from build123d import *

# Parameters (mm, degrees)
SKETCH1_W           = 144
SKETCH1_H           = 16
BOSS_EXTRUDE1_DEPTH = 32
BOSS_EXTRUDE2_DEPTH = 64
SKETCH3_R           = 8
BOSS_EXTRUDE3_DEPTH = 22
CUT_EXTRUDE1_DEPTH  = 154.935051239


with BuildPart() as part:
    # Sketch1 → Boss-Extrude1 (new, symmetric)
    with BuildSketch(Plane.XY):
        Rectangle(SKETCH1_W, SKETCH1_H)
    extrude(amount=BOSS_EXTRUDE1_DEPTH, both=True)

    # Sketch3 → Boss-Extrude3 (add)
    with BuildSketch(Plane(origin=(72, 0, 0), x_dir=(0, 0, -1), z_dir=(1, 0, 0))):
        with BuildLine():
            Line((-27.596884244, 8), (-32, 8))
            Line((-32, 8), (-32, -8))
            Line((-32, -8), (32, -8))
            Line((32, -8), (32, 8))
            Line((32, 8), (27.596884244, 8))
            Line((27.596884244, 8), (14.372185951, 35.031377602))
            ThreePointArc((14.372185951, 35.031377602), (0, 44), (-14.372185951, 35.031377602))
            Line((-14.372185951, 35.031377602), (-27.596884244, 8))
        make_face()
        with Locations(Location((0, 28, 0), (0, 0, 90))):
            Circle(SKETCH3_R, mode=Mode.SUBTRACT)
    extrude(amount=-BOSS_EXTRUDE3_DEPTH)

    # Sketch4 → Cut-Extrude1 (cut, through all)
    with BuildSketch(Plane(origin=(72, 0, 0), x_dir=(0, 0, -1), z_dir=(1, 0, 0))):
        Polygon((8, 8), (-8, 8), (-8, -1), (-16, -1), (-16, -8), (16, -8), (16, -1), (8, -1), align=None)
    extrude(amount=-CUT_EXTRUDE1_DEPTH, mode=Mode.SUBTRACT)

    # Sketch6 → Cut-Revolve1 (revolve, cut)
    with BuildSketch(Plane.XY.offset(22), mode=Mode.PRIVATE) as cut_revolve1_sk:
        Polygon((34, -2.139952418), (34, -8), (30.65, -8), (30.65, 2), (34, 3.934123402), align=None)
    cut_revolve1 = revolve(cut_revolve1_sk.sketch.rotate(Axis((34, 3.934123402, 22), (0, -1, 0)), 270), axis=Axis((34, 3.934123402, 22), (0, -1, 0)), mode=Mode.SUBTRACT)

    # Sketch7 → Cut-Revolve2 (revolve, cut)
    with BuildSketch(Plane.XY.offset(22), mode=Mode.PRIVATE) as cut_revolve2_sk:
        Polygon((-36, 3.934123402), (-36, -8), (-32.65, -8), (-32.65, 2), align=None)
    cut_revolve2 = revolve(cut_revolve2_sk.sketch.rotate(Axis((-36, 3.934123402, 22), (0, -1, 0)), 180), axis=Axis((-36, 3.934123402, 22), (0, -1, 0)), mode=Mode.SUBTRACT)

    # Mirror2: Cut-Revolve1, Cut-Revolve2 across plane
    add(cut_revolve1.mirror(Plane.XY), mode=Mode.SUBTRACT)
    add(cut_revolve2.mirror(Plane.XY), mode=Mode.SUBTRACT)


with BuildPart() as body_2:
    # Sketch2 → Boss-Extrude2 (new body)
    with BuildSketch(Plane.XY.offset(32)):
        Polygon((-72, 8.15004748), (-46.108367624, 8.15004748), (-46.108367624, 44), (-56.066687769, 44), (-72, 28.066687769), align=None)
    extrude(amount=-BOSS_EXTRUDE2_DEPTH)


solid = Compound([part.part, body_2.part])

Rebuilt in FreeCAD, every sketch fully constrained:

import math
import FreeCAD as App
import Part
import Sketcher
Q = App.Units.Quantity

doc = App.newDocument("Part")
params = doc.addObject("Spreadsheet::Sheet", "Params")
for row, (alias, value) in enumerate([
    ("sketch1_width", "144 mm"),
    ("sketch1_height", "16 mm"),
    ("pad1_length", "64 mm"),
    ("sketch2_diameter", "16 mm"),
    ("sketch2_radius", "16 mm"),
    ("sketch2_width", "16 mm"),
    ("sketch2_height", "64 mm"),
    ("pad2_length", "22 mm"),
    ("sketch3_width", "9 mm"),
    ("sketch3_width2", "7 mm"),
    ("sketch3_height", "16 mm"),
    ("sketch3_height2", "8 mm"),
    ("sketch4_height", "10 mm"),
    ("sketch4_width", "3.35 mm"),
    ("groove_angle", "360 deg"),
    ("sketch5_height", "10 mm"),
    ("sketch5_width", "3.35 mm"),
    ("groove2_angle", "360 deg"),
    ("pad3_length", "64 mm"),
], start=1):
    params.set(f"A{row}", alias)
    params.set(f"B{row}", "=" + value)
    params.setAlias(f"B{row}", alias)

body = doc.addObject("PartDesign::Body", "Body")

# Sketch on XY plane
sketch1 = body.newObject("Sketcher::SketchObject", "Sketch")
sketch1.AttachmentSupport = (doc.getObject("XY_Plane"), [""])
sketch1.MapMode = "FlatFace"
sketch1.addGeometry(Part.LineSegment(App.Vector(-72, 8, 0), App.Vector(-72, -8, 0)), False)
sketch1.addGeometry(Part.LineSegment(App.Vector(-72, -8, 0), App.Vector(72, -8, 0)), False)
sketch1.addGeometry(Part.LineSegment(App.Vector(72, -8, 0), App.Vector(72, 8, 0)), False)
sketch1.addGeometry(Part.LineSegment(App.Vector(72, 8, 0), App.Vector(-72, 8, 0)), False)
sketch1.addConstraint(Sketcher.Constraint("Coincident", 0, 2, 1, 1))
sketch1.addConstraint(Sketcher.Constraint("Coincident", 1, 2, 2, 1))
sketch1.addConstraint(Sketcher.Constraint("Coincident", 2, 2, 3, 1))
sketch1.addConstraint(Sketcher.Constraint("Coincident", 3, 2, 0, 1))
sketch1.addConstraint(Sketcher.Constraint("Vertical", 0))
sketch1.addConstraint(Sketcher.Constraint("Horizontal", 1))
sketch1.addConstraint(Sketcher.Constraint("Vertical", 2))
sketch1.addConstraint(Sketcher.Constraint("Horizontal", 3))
sketch1.addConstraint(Sketcher.Constraint("Symmetric", 0, 2, 2, 2, -1, 1))
sketch1.addConstraint(Sketcher.Constraint("DistanceX", 1, 1, 1, 2, Q("144 mm")))
sketch1.addConstraint(Sketcher.Constraint("DistanceY", 0, 2, 0, 1, Q("16 mm")))
sketch1.setExpression("Constraints[9]", "Params.sketch1_width")
sketch1.setExpression("Constraints[10]", "Params.sketch1_height")
pad1 = body.newObject("PartDesign::Pad", "Pad")
pad1.Profile = sketch1
pad1.setExpression("Length", "Params.pad1_length")
pad1.Midplane = True

# Sketch on YZ plane
sketch2 = body.newObject("Sketcher::SketchObject", "Sketch001")
sketch2.AttachmentSupport = (doc.getObject("YZ_Plane"), [""])
sketch2.MapMode = "FlatFace"
sketch2.AttachmentOffset = App.Placement(App.Vector(0, 0, 72), App.Rotation())
sketch2.addGeometry(Part.LineSegment(App.Vector(8, 27.6, 0), App.Vector(8, 32, 0)), False)
sketch2.addGeometry(Part.LineSegment(App.Vector(8, 32, 0), App.Vector(-8, 32, 0)), False)
sketch2.addGeometry(Part.LineSegment(App.Vector(-8, 32, 0), App.Vector(-8, -32, 0)), False)
sketch2.addGeometry(Part.LineSegment(App.Vector(-8, -32, 0), App.Vector(8, -32, 0)), False)
sketch2.addGeometry(Part.LineSegment(App.Vector(8, -32, 0), App.Vector(8, -27.6, 0)), False)
sketch2.addGeometry(Part.LineSegment(App.Vector(8, -27.6, 0), App.Vector(35, -14.4, 0)), False)
sketch2.addGeometry(Part.ArcOfCircle(Part.Circle(App.Vector(28, 0, 0), App.Vector(0, 0, 1), 16), math.radians(-64), math.radians(64)), False)
sketch2.addGeometry(Part.LineSegment(App.Vector(35, 14.4, 0), App.Vector(8, 27.6, 0)), False)
sketch2.addGeometry(Part.Circle(App.Vector(28, 0, 0), App.Vector(0, 0, 1), 8), False)
sketch2.addConstraint(Sketcher.Constraint("Coincident", 0, 2, 1, 1))
sketch2.addConstraint(Sketcher.Constraint("Coincident", 1, 2, 2, 1))
sketch2.addConstraint(Sketcher.Constraint("Coincident", 2, 2, 3, 1))
sketch2.addConstraint(Sketcher.Constraint("Coincident", 3, 2, 4, 1))
sketch2.addConstraint(Sketcher.Constraint("Coincident", 4, 2, 5, 1))
sketch2.addConstraint(Sketcher.Constraint("Tangent", 5, 2, 6, 1))
sketch2.addConstraint(Sketcher.Constraint("Tangent", 6, 2, 7, 1))
sketch2.addConstraint(Sketcher.Constraint("Coincident", 7, 2, 0, 1))
sketch2.addConstraint(Sketcher.Constraint("Vertical", 0))
sketch2.addConstraint(Sketcher.Constraint("Horizontal", 1))
sketch2.addConstraint(Sketcher.Constraint("Vertical", 2))
sketch2.addConstraint(Sketcher.Constraint("Horizontal", 3))
sketch2.addConstraint(Sketcher.Constraint("Vertical", 4))
sketch2.addConstraint(Sketcher.Constraint("Coincident", 8, 3, 6, 3))
sketch2.addConstraint(Sketcher.Constraint("Symmetric", 0, 2, 2, 2, -1, 1))
sketch2.addConstraint(Sketcher.Constraint("Symmetric", 5, 2, 6, 2, -1))
sketch2.addConstraint(Sketcher.Constraint("Vertical", 0, 2, 3, 2))
sketch2.addConstraint(Sketcher.Constraint("Diameter", 8, Q("16 mm")))
sketch2.addConstraint(Sketcher.Constraint("Radius", 6, Q("16 mm")))
sketch2.addConstraint(Sketcher.Constraint("DistanceX", 1, 2, 1, 1, Q("16 mm")))
sketch2.addConstraint(Sketcher.Constraint("DistanceY", 2, 2, 2, 1, Q("64 mm")))
sketch2.addConstraint(Sketcher.Constraint("DistanceX", -1, 1, 6, 3, Q("28 mm")))
sketch2.addConstraint(Sketcher.Constraint("DistanceY", 4, 2, 5, 2, Q("13.224698 mm")))
sketch2.setExpression("Constraints[17]", "Params.sketch2_diameter")
sketch2.setExpression("Constraints[18]", "Params.sketch2_radius")
sketch2.setExpression("Constraints[19]", "Params.sketch2_width")
sketch2.setExpression("Constraints[20]", "Params.sketch2_height")
pad2 = body.newObject("PartDesign::Pad", "Pad001")
pad2.Profile = sketch2
pad2.setExpression("Length", "Params.pad2_length")
pad2.Reversed = True

# Sketch on YZ plane
sketch3 = body.newObject("Sketcher::SketchObject", "Sketch002")
sketch3.AttachmentSupport = (doc.getObject("YZ_Plane"), [""])
sketch3.MapMode = "FlatFace"
sketch3.AttachmentOffset = App.Placement(App.Vector(0, 0, 72), App.Rotation())
sketch3.addGeometry(Part.LineSegment(App.Vector(8, -8, 0), App.Vector(8, 8, 0)), False)
sketch3.addGeometry(Part.LineSegment(App.Vector(8, 8, 0), App.Vector(-1, 8, 0)), False)
sketch3.addGeometry(Part.LineSegment(App.Vector(-1, 8, 0), App.Vector(-1, 16, 0)), False)
sketch3.addGeometry(Part.LineSegment(App.Vector(-1, 16, 0), App.Vector(-8, 16, 0)), False)
sketch3.addGeometry(Part.LineSegment(App.Vector(-8, 16, 0), App.Vector(-8, -16, 0)), False)
sketch3.addGeometry(Part.LineSegment(App.Vector(-8, -16, 0), App.Vector(-1, -16, 0)), False)
sketch3.addGeometry(Part.LineSegment(App.Vector(-1, -16, 0), App.Vector(-1, -8, 0)), False)
sketch3.addGeometry(Part.LineSegment(App.Vector(-1, -8, 0), App.Vector(8, -8, 0)), False)
sketch3.addConstraint(Sketcher.Constraint("Coincident", 0, 2, 1, 1))
sketch3.addConstraint(Sketcher.Constraint("Coincident", 1, 2, 2, 1))
sketch3.addConstraint(Sketcher.Constraint("Coincident", 2, 2, 3, 1))
sketch3.addConstraint(Sketcher.Constraint("Coincident", 3, 2, 4, 1))
sketch3.addConstraint(Sketcher.Constraint("Coincident", 4, 2, 5, 1))
sketch3.addConstraint(Sketcher.Constraint("Coincident", 5, 2, 6, 1))
sketch3.addConstraint(Sketcher.Constraint("Coincident", 6, 2, 7, 1))
sketch3.addConstraint(Sketcher.Constraint("Coincident", 7, 2, 0, 1))
sketch3.addConstraint(Sketcher.Constraint("Vertical", 0))
sketch3.addConstraint(Sketcher.Constraint("Horizontal", 1))
sketch3.addConstraint(Sketcher.Constraint("Vertical", 2))
sketch3.addConstraint(Sketcher.Constraint("Horizontal", 3))
sketch3.addConstraint(Sketcher.Constraint("Vertical", 4))
sketch3.addConstraint(Sketcher.Constraint("Horizontal", 5))
sketch3.addConstraint(Sketcher.Constraint("Vertical", 6))
sketch3.addConstraint(Sketcher.Constraint("Horizontal", 7))
sketch3.addConstraint(Sketcher.Constraint("Symmetric", 2, 2, 5, 2, -1))
sketch3.addConstraint(Sketcher.Constraint("Equal", 2, 6))
sketch3.addConstraint(Sketcher.Constraint("DistanceX", 1, 2, 1, 1, Q("9 mm")))
sketch3.addConstraint(Sketcher.Constraint("DistanceX", 3, 2, 3, 1, Q("7 mm")))
sketch3.addConstraint(Sketcher.Constraint("DistanceY", 0, 1, 0, 2, Q("16 mm")))
sketch3.addConstraint(Sketcher.Constraint("DistanceY", 2, 1, 2, 2, Q("8 mm")))
sketch3.addConstraint(Sketcher.Constraint("DistanceX", -1, 1, 0, 2, Q("8 mm")))
sketch3.setExpression("Constraints[18]", "Params.sketch3_width")
sketch3.setExpression("Constraints[19]", "Params.sketch3_width2")
sketch3.setExpression("Constraints[20]", "Params.sketch3_height")
sketch3.setExpression("Constraints[21]", "Params.sketch3_height2")
pocket1 = body.newObject("PartDesign::Pocket", "Pocket")
pocket1.Profile = sketch3
pocket1.Type = "ThroughAll"

# Sketch on XY plane
sketch4 = body.newObject("Sketcher::SketchObject", "Sketch003")
sketch4.AttachmentSupport = (doc.getObject("XY_Plane"), [""])
sketch4.MapMode = "FlatFace"
sketch4.AttachmentOffset = App.Placement(App.Vector(0, 0, 22), App.Rotation())
sketch4.addGeometry(Part.LineSegment(App.Vector(34, -8, 0), App.Vector(34, 3.9, 0)), False)
sketch4.addGeometry(Part.LineSegment(App.Vector(34, 3.9, 0), App.Vector(30.6, 2, 0)), False)
sketch4.addGeometry(Part.LineSegment(App.Vector(30.6, 2, 0), App.Vector(30.6, -8, 0)), False)
sketch4.addGeometry(Part.LineSegment(App.Vector(30.6, -8, 0), App.Vector(34, -8, 0)), False)
sketch4.addGeometry(Part.LineSegment(App.Vector(34, 3.9, 0), App.Vector(34, -8, 0)), True)  # axis
sketch4.addConstraint(Sketcher.Constraint("Coincident", 0, 2, 1, 1))
sketch4.addConstraint(Sketcher.Constraint("Coincident", 1, 2, 2, 1))
sketch4.addConstraint(Sketcher.Constraint("Coincident", 2, 2, 3, 1))
sketch4.addConstraint(Sketcher.Constraint("Coincident", 3, 2, 0, 1))
sketch4.addConstraint(Sketcher.Constraint("Vertical", 0))
sketch4.addConstraint(Sketcher.Constraint("Vertical", 2))
sketch4.addConstraint(Sketcher.Constraint("Horizontal", 3))
sketch4.addConstraint(Sketcher.Constraint("Vertical", 4))
sketch4.addConstraint(Sketcher.Constraint("Coincident", 4, 1, 0, 2))
sketch4.addConstraint(Sketcher.Constraint("Horizontal", 2, 2, 4, 2))
sketch4.addConstraint(Sketcher.Constraint("DistanceY", 2, 2, 2, 1, Q("10 mm")))
sketch4.addConstraint(Sketcher.Constraint("Angle", 1, Q("-150 deg")))
sketch4.addConstraint(Sketcher.Constraint("DistanceX", -1, 1, 0, 2, Q("34 mm")))
sketch4.addConstraint(Sketcher.Constraint("DistanceY", -1, 1, 1, 2, Q("2 mm")))
sketch4.addConstraint(Sketcher.Constraint("DistanceX", 3, 1, 3, 2, Q("3.35 mm")))
sketch4.setExpression("Constraints[10]", "Params.sketch4_height")
sketch4.setExpression("Constraints[14]", "Params.sketch4_width")
groove = body.newObject("PartDesign::Groove", "Groove")
groove.Profile = sketch4
groove.ReferenceAxis = (sketch4, ["Axis0"])
groove.setExpression("Angle", "Params.groove_angle")

# Sketch on XY plane
sketch5 = body.newObject("Sketcher::SketchObject", "Sketch004")
sketch5.AttachmentSupport = (doc.getObject("XY_Plane"), [""])
sketch5.MapMode = "FlatFace"
sketch5.AttachmentOffset = App.Placement(App.Vector(0, 0, 22), App.Rotation())
sketch5.addGeometry(Part.LineSegment(App.Vector(-36, 3.9, 0), App.Vector(-36, -8, 0)), False)
sketch5.addGeometry(Part.LineSegment(App.Vector(-36, -8, 0), App.Vector(-32.6, -8, 0)), False)
sketch5.addGeometry(Part.LineSegment(App.Vector(-32.6, -8, 0), App.Vector(-32.6, 2, 0)), False)
sketch5.addGeometry(Part.LineSegment(App.Vector(-32.6, 2, 0), App.Vector(-36, 3.9, 0)), False)
sketch5.addGeometry(Part.LineSegment(App.Vector(-36, 3.9, 0), App.Vector(-36, -8, 0)), True)  # axis
sketch5.addConstraint(Sketcher.Constraint("Coincident", 0, 2, 1, 1))
sketch5.addConstraint(Sketcher.Constraint("Coincident", 1, 2, 2, 1))
sketch5.addConstraint(Sketcher.Constraint("Coincident", 2, 2, 3, 1))
sketch5.addConstraint(Sketcher.Constraint("Coincident", 3, 2, 0, 1))
sketch5.addConstraint(Sketcher.Constraint("Vertical", 0))
sketch5.addConstraint(Sketcher.Constraint("Horizontal", 1))
sketch5.addConstraint(Sketcher.Constraint("Vertical", 2))
sketch5.addConstraint(Sketcher.Constraint("Vertical", 4))
sketch5.addConstraint(Sketcher.Constraint("Coincident", 4, 1, 3, 2))
sketch5.addConstraint(Sketcher.Constraint("Horizontal", 1, 2, 4, 2))
sketch5.addConstraint(Sketcher.Constraint("DistanceY", 2, 1, 2, 2, Q("10 mm")))
sketch5.addConstraint(Sketcher.Constraint("Angle", 3, Q("150 deg")))
sketch5.addConstraint(Sketcher.Constraint("DistanceX", 0, 2, -1, 1, Q("36 mm")))
sketch5.addConstraint(Sketcher.Constraint("DistanceY", 0, 2, -1, 1, Q("8 mm")))
sketch5.addConstraint(Sketcher.Constraint("DistanceX", 1, 1, 1, 2, Q("3.35 mm")))
sketch5.setExpression("Constraints[10]", "Params.sketch5_height")
sketch5.setExpression("Constraints[14]", "Params.sketch5_width")
groove2 = body.newObject("PartDesign::Groove", "Groove001")
groove2.Profile = sketch5
groove2.ReferenceAxis = (sketch5, ["Axis0"])
groove2.setExpression("Angle", "Params.groove2_angle")
doc.recompute()

mirrored = body.newObject("PartDesign::Mirrored", "Mirrored")
mirrored.Originals = [groove, groove2]
mirrored.MirrorPlane = (doc.getObject("XY_Plane"), [""])
body.Tip = mirrored
body2 = doc.addObject("PartDesign::Body", "Body001")

# Sketch on XY plane
sketch6 = body2.newObject("Sketcher::SketchObject", "Sketch005")
sketch6.AttachmentSupport = (doc.getObject("XY_Plane001"), [""])
sketch6.MapMode = "FlatFace"
sketch6.AttachmentOffset = App.Placement(App.Vector(0, 0, 32), App.Rotation())
sketch6.addGeometry(Part.LineSegment(App.Vector(-72, 8, 0), App.Vector(-46, 8, 0)), False)
sketch6.addGeometry(Part.LineSegment(App.Vector(-46, 8, 0), App.Vector(-46, 44, 0)), False)
sketch6.addGeometry(Part.LineSegment(App.Vector(-46, 44, 0), App.Vector(-56, 44, 0)), False)
sketch6.addGeometry(Part.LineSegment(App.Vector(-56, 44, 0), App.Vector(-72, 28, 0)), False)
sketch6.addGeometry(Part.LineSegment(App.Vector(-72, 28, 0), App.Vector(-72, 8, 0)), False)
sketch6.addConstraint(Sketcher.Constraint("Coincident", 0, 2, 1, 1))
sketch6.addConstraint(Sketcher.Constraint("Coincident", 1, 2, 2, 1))
sketch6.addConstraint(Sketcher.Constraint("Coincident", 2, 2, 3, 1))
sketch6.addConstraint(Sketcher.Constraint("Coincident", 3, 2, 4, 1))
sketch6.addConstraint(Sketcher.Constraint("Coincident", 4, 2, 0, 1))
sketch6.addConstraint(Sketcher.Constraint("Horizontal", 0))
sketch6.addConstraint(Sketcher.Constraint("Vertical", 1))
sketch6.addConstraint(Sketcher.Constraint("Horizontal", 2))
sketch6.addConstraint(Sketcher.Constraint("Vertical", 4))
sketch6.addConstraint(Sketcher.Constraint("Angle", 3, Q("-135 deg")))
sketch6.addConstraint(Sketcher.Constraint("DistanceY", -1, 1, 1, 2, Q("44 mm")))
sketch6.addConstraint(Sketcher.Constraint("DistanceX", 3, 2, -1, 1, Q("72 mm")))
sketch6.addConstraint(Sketcher.Constraint("DistanceX", 2, 2, 2, 1, Q("9.95832 mm")))
sketch6.addConstraint(Sketcher.Constraint("DistanceY", 4, 2, 4, 1, Q("19.91664 mm")))
sketch6.addConstraint(Sketcher.Constraint("DistanceX", 0, 1, 0, 2, Q("25.891632 mm")))
pad3 = body2.newObject("PartDesign::Pad", "Pad002")
pad3.Profile = sketch6
pad3.setExpression("Length", "Params.pad3_length")
pad3.Reversed = True

doc.recompute()
